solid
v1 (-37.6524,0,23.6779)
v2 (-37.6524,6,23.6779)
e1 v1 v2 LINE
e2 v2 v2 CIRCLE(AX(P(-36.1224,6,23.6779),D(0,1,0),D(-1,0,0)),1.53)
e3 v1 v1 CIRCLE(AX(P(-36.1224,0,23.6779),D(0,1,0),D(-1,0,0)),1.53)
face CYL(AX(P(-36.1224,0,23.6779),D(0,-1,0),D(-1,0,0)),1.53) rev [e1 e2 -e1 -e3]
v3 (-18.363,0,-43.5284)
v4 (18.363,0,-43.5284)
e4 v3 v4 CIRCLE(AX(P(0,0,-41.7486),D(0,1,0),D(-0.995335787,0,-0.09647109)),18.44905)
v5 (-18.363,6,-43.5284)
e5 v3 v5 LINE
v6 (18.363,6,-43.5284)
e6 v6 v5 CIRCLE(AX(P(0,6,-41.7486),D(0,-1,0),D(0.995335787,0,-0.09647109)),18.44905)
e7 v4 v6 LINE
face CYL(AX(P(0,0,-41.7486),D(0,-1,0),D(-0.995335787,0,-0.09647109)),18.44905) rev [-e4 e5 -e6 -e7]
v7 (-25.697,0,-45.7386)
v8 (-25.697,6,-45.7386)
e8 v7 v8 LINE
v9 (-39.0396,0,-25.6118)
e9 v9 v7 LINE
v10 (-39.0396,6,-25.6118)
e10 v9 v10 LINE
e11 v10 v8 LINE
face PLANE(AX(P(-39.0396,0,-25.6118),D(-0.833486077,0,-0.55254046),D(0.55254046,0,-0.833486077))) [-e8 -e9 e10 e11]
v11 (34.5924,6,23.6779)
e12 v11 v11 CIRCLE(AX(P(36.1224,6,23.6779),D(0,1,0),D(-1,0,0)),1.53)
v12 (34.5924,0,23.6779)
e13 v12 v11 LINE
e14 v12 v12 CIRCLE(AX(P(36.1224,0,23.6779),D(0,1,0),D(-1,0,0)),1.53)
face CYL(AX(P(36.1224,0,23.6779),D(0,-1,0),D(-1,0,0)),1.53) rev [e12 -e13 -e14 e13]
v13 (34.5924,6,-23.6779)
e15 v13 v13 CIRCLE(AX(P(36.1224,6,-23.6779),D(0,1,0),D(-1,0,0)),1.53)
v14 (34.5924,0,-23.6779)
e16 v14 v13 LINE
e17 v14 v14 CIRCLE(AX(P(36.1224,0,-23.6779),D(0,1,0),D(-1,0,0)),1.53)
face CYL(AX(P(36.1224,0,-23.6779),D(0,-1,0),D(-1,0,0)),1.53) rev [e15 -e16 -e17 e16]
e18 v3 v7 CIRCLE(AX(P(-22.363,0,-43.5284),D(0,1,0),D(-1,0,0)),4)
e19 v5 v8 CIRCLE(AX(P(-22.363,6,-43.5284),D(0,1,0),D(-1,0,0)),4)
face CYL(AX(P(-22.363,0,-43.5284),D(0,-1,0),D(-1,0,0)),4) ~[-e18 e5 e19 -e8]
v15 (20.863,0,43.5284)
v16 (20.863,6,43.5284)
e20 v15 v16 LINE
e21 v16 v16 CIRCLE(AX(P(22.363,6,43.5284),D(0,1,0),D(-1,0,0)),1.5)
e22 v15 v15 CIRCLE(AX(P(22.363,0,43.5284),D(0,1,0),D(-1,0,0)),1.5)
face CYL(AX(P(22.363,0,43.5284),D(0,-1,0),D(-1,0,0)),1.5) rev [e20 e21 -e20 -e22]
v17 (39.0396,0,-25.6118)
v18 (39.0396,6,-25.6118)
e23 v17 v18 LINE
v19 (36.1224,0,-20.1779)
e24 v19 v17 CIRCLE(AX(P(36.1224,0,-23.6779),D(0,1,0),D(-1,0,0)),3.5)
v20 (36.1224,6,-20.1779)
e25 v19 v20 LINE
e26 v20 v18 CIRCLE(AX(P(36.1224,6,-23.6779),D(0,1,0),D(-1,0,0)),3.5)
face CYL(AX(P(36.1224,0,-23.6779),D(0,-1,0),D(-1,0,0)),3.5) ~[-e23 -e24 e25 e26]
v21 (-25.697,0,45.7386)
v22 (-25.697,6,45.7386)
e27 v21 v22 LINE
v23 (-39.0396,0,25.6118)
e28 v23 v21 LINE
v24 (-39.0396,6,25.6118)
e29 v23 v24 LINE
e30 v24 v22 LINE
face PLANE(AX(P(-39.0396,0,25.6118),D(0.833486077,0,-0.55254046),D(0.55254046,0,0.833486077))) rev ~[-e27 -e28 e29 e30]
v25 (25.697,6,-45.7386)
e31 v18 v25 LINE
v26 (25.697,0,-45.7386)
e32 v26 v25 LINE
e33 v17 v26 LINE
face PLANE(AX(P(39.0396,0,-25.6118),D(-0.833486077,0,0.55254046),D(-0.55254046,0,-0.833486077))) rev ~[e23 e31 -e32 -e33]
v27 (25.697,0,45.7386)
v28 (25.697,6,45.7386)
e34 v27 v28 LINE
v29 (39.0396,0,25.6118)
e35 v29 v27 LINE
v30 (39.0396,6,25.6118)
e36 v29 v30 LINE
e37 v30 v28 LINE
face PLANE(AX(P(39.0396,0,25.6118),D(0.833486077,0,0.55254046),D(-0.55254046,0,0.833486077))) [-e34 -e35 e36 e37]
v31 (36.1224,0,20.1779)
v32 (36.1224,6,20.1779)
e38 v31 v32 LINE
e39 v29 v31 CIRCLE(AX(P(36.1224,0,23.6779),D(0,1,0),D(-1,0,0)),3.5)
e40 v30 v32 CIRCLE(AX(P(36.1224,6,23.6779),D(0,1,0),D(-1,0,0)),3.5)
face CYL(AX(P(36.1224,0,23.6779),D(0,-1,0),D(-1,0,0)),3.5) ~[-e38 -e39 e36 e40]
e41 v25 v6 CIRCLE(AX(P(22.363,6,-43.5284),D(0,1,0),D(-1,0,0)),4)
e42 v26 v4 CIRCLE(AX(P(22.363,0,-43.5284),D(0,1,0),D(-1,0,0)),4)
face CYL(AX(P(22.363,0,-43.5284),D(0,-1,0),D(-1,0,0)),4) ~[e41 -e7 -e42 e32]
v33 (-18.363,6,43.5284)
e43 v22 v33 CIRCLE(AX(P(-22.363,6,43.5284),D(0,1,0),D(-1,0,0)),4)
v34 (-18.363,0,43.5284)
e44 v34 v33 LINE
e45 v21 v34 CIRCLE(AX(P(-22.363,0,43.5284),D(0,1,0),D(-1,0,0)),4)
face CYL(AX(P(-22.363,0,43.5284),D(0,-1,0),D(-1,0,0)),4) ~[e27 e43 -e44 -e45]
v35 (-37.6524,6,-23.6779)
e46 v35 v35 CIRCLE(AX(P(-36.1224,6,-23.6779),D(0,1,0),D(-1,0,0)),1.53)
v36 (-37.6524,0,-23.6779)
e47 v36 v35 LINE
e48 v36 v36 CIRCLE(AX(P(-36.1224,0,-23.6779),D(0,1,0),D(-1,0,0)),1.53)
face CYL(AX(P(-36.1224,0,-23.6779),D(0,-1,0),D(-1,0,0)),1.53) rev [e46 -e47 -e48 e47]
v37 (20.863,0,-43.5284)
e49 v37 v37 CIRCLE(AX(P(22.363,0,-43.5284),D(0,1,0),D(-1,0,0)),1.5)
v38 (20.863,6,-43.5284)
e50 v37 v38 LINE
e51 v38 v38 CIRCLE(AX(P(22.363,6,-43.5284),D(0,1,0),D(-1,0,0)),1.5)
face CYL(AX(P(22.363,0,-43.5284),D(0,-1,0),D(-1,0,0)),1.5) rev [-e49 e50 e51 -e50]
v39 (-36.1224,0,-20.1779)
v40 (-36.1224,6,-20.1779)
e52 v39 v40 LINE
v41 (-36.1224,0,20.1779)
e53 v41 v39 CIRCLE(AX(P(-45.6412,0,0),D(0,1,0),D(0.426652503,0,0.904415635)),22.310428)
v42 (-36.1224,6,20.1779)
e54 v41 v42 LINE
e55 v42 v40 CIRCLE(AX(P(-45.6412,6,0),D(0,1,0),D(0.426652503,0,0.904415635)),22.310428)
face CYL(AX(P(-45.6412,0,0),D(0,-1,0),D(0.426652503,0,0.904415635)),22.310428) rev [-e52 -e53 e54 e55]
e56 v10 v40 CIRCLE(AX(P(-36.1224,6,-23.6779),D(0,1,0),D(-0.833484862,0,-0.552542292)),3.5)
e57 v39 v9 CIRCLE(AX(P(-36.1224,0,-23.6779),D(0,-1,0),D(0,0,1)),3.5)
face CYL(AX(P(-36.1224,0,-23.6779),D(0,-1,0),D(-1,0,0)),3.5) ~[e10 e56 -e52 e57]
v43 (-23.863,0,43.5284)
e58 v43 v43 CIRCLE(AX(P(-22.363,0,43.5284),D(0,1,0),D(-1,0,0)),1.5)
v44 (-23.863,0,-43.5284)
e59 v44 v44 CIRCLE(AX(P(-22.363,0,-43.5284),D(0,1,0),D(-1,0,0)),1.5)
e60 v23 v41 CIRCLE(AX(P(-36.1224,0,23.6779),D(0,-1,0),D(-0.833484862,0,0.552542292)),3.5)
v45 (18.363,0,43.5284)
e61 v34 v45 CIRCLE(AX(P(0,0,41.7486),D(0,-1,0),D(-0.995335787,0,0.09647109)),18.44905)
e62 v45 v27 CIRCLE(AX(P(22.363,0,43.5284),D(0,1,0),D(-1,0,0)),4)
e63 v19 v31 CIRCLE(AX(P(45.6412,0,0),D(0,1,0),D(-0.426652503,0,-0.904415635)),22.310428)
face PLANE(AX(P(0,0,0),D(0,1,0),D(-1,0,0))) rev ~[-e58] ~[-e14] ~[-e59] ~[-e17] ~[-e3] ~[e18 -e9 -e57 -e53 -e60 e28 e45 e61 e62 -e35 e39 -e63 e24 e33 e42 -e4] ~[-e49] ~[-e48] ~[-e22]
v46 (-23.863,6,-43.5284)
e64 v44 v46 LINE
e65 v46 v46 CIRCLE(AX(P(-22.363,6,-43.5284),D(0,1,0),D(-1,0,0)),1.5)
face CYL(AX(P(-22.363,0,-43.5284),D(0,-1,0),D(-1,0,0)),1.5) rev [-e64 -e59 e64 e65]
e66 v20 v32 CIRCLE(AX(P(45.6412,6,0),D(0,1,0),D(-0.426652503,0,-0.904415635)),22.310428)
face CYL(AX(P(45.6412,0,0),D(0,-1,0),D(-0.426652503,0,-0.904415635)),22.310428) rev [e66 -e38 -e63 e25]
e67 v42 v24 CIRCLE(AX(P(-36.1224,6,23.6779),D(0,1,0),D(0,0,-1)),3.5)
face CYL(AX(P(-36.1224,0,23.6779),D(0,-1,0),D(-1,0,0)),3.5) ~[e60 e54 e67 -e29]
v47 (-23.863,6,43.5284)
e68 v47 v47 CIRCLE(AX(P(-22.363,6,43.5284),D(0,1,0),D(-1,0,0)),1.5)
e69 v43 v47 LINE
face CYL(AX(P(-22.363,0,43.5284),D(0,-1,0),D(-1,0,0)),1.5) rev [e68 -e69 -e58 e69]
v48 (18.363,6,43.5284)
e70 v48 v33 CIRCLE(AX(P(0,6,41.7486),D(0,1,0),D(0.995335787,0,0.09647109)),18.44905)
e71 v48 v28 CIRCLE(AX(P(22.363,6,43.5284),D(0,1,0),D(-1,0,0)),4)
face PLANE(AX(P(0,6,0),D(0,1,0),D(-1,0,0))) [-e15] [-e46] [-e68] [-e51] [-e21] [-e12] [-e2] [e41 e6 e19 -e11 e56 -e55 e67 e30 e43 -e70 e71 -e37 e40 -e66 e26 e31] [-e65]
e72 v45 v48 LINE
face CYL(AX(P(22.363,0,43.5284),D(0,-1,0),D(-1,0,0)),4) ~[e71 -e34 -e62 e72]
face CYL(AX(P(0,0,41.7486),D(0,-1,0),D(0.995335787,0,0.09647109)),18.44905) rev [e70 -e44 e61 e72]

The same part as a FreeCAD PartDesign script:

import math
import FreeCAD as App
import Part
import Sketcher
from FreeCAD import Vector

doc = App.newDocument("Part")
params = doc.addObject("Spreadsheet::Sheet", "Params")
for row, (alias, value) in enumerate([
    ("sketch1_radius", "4 mm"),
    ("sketch1_radius2", "3.5 mm"),
    ("sketch1_diameter", "3 mm"),
    ("sketch1_diameter2", "3.06 mm"),
    ("pad1_length", "6 mm"),
], start=1):
    params.set(f"A{row}", alias)
    params.set(f"B{row}", "=" + value)
    params.setAlias(f"B{row}", alias)

body = doc.addObject("PartDesign::Body", "Body")

# Sketch on XZ plane
sketch1 = body.newObject("Sketcher::SketchObject", "Sketch")
sketch1.AttachmentSupport = (doc.getObject("XZ_Plane"), [""])
sketch1.MapMode = "FlatFace"
sketch1.addGeometry([
    Part.ArcOfCircle(Part.Circle(Vector(0, 41.7486, 0), Vector(0, 0, 1), 18.44905), math.radians(174.464004), math.radians(365.535996)),  # 0
    Part.ArcOfCircle(Part.Circle(Vector(22.363, 43.5284, 0), Vector(0, 0, 1), 4), math.radians(33.541489), math.radians(180)),  # 1
    Part.LineSegment(Vector(25.697, 45.7386, 0), Vector(39.0396, 25.6118, 0)),  # 2
    Part.ArcOfCircle(Part.Circle(Vector(36.1224, 23.6779, 0), Vector(0, 0, 1), 3.5), math.radians(-90), math.radians(33.5416)),  # 3
    Part.ArcOfCircle(Part.Circle(Vector(45.6412, 0, 0), Vector(0, 0, 1), 22.310428), math.radians(115.255306), math.radians(244.744694)),  # 4
    Part.ArcOfCircle(Part.Circle(Vector(36.1224, -23.6779, 0), Vector(0, 0, 1), 3.5), math.radians(-33.5416), math.radians(90)),  # 5
    Part.LineSegment(Vector(39.0396, -25.6118, 0), Vector(25.697, -45.7386, 0)),  # 6
    Part.ArcOfCircle(Part.Circle(Vector(22.363, -43.5284, 0), Vector(0, 0, 1), 4), math.radians(180), math.radians(326.458511)),  # 7
    Part.ArcOfCircle(Part.Circle(Vector(0, -41.7486, 0), Vector(0, 0, 1), 18.44905), math.radians(-5.535996), math.radians(185.535996)),  # 8
    Part.ArcOfCircle(Part.Circle(Vector(-22.363, -43.5284, 0), Vector(0, 0, 1), 4), math.radians(-146.458511), math.radians(0)),  # 9
    Part.LineSegment(Vector(-25.697, -45.7386, 0), Vector(-39.0396, -25.6118, 0)),  # 10
    Part.ArcOfCircle(Part.Circle(Vector(-36.1224, -23.6779, 0), Vector(0, 0, 1), 3.5), math.radians(90), math.radians(213.5416)),  # 11
    Part.ArcOfCircle(Part.Circle(Vector(-45.6412, 0, 0), Vector(0, 0, 1), 22.310428), math.radians(-64.744694), math.radians(64.744694)),  # 12
    Part.ArcOfCircle(Part.Circle(Vector(-36.1224, 23.6779, 0), Vector(0, 0, 1), 3.5), math.radians(146.4584), math.radians(270)),  # 13
    Part.LineSegment(Vector(-39.0396, 25.6118, 0), Vector(-25.697, 45.7386, 0)),  # 14
    Part.ArcOfCircle(Part.Circle(Vector(-22.363, 43.5284, 0), Vector(0, 0, 1), 4), math.radians(0), math.radians(146.458511)),  # 15
    Part.Circle(Vector(-22.363, 43.5284, 0), Vector(0, 0, 1), 1.5),  # 16
    Part.Circle(Vector(-36.1224, 23.6779, 0), Vector(0, 0, 1), 1.53),  # 17
    Part.Circle(Vector(-36.1224, -23.6779, 0), Vector(0, 0, 1), 1.53),  # 18
    Part.Circle(Vector(-22.363, -43.5284, 0), Vector(0, 0, 1), 1.5),  # 19
    Part.Circle(Vector(22.363, -43.5284, 0), Vector(0, 0, 1), 1.5),  # 20
    Part.Circle(Vector(36.1224, -23.6779, 0), Vector(0, 0, 1), 1.53),  # 21
    Part.Circle(Vector(36.1224, 23.6779, 0), Vector(0, 0, 1), 1.53),  # 22
    Part.Circle(Vector(22.363, 43.5284, 0), Vector(0, 0, 1), 1.5),  # 23
], False)
sketch1.addConstraint([
    Sketcher.Constraint("Coincident", 0, 2, 1, 2),
    Sketcher.Constraint("Tangent", 1, 1, 2, 1),
    Sketcher.Constraint("Tangent", 2, 2, 3, 2),
    Sketcher.Constraint("Coincident", 3, 1, 4, 1),
    Sketcher.Constraint("Coincident", 4, 2, 5, 2),
    Sketcher.Constraint("Tangent", 5, 1, 6, 1),
    Sketcher.Constraint("Tangent", 6, 2, 7, 2),
    Sketcher.Constraint("Coincident", 7, 1, 8, 1),
    Sketcher.Constraint("Coincident", 8, 2, 9, 2),
    Sketcher.Constraint("Tangent", 9, 1, 10, 1),
    Sketcher.Constraint("Tangent", 10, 2, 11, 2),
    Sketcher.Constraint("Coincident", 11, 1, 12, 1),
    Sketcher.Constraint("Coincident", 12, 2, 13, 2),
    Sketcher.Constraint("Tangent", 13, 1, 14, 1),
    Sketcher.Constraint("Tangent", 14, 2, 15, 2),
    Sketcher.Constraint("Coincident", 15, 1, 0, 1),
    Sketcher.Constraint("Coincident", 16, 3, 15, 3),
    Sketcher.Constraint("Coincident", 17, 3, 13, 3),
    Sketcher.Constraint("Coincident", 18, 3, 11, 3),
    Sketcher.Constraint("Coincident", 19, 3, 9, 3),
    Sketcher.Constraint("Coincident", 20, 3, 7, 3),
    Sketcher.Constraint("Coincident", 21, 3, 5, 3),
    Sketcher.Constraint("Coincident", 22, 3, 3, 3),
    Sketcher.Constraint("Coincident", 23, 3, 1, 3),
    Sketcher.Constraint("Equal", 3, 5),
    Sketcher.Constraint("Equal", 1, 7),
    Sketcher.Constraint("Equal", 0, 8),
    Sketcher.Constraint("Equal", 7, 9),
    Sketcher.Constraint("Equal", 5, 11),
    Sketcher.Constraint("Equal", 4, 12),
    Sketcher.Constraint("Equal", 11, 13),
    Sketcher.Constraint("Equal", 9, 15),
    Sketcher.Constraint("Equal", 17, 18),
    Sketcher.Constraint("Equal", 16, 19),
    Sketcher.Constraint("Equal", 19, 20),
    Sketcher.Constraint("Equal", 18, 21),
    Sketcher.Constraint("Equal", 21, 22),
    Sketcher.Constraint("Equal", 20, 23),
    Sketcher.Constraint("Symmetric", 0, 3, 8, 3, -1, 1),
    Sketcher.Constraint("Symmetric", 1, 3, 9, 3, -1, 1),
    Sketcher.Constraint("Symmetric", 3, 3, 11, 3, -1, 1),
    Sketcher.Constraint("Symmetric", 4, 3, 12, 3, -1, 1),
    Sketcher.Constraint("Symmetric", 5, 3, 13, 3, -1, 1),
    Sketcher.Constraint("Symmetric", 7, 3, 15, 3, -1, 1),
    Sketcher.Constraint("Symmetric", 7, 3, 9, 3, -2),
    Sketcher.Constraint("Symmetric", 5, 3, 11, 3, -2),
    Sketcher.Constraint("PointOnObject", 0, 3, -2),
    Sketcher.Constraint("PointOnObject", 4, 3, -1),
    Sketcher.Constraint("Horizontal", 23, 3, 0, 2),
    Sketcher.Constraint("Vertical", 22, 3, 3, 1),
    Sketcher.Constraint("Radius", 1, 4.0),
    Sketcher.Constraint("Radius", 3, 3.5),
    Sketcher.Constraint("Diameter", 16, 3.0),
    Sketcher.Constraint("Diameter", 17, 3.06),
    Sketcher.Constraint("Radius", 0, 18.449),
    Sketcher.Constraint("Radius", 4, 22.3104),
    Sketcher.Constraint("DistanceX", -1, 1, 1, 3, 22.363),
    Sketcher.Constraint("DistanceY", -1, 1, 3, 3, 23.678),
    Sketcher.Constraint("DistanceX", -1, 1, 1, 1, 25.697),
    Sketcher.Constraint("DistanceY", 7, 3, 0, 3, 85.277),
])
sketch1.setExpression("Constraints[50]", "Params.sketch1_radius")
sketch1.setExpression("Constraints[51]", "Params.sketch1_radius2")
sketch1.setExpression("Constraints[52]", "Params.sketch1_diameter")
sketch1.setExpression("Constraints[53]", "Params.sketch1_diameter2")
pad1 = body.newObject("PartDesign::Pad", "Pad")
pad1.Profile = sketch1
pad1.setExpression("Length", "Params.pad1_length")
pad1.Reversed = True

doc.recompute()
